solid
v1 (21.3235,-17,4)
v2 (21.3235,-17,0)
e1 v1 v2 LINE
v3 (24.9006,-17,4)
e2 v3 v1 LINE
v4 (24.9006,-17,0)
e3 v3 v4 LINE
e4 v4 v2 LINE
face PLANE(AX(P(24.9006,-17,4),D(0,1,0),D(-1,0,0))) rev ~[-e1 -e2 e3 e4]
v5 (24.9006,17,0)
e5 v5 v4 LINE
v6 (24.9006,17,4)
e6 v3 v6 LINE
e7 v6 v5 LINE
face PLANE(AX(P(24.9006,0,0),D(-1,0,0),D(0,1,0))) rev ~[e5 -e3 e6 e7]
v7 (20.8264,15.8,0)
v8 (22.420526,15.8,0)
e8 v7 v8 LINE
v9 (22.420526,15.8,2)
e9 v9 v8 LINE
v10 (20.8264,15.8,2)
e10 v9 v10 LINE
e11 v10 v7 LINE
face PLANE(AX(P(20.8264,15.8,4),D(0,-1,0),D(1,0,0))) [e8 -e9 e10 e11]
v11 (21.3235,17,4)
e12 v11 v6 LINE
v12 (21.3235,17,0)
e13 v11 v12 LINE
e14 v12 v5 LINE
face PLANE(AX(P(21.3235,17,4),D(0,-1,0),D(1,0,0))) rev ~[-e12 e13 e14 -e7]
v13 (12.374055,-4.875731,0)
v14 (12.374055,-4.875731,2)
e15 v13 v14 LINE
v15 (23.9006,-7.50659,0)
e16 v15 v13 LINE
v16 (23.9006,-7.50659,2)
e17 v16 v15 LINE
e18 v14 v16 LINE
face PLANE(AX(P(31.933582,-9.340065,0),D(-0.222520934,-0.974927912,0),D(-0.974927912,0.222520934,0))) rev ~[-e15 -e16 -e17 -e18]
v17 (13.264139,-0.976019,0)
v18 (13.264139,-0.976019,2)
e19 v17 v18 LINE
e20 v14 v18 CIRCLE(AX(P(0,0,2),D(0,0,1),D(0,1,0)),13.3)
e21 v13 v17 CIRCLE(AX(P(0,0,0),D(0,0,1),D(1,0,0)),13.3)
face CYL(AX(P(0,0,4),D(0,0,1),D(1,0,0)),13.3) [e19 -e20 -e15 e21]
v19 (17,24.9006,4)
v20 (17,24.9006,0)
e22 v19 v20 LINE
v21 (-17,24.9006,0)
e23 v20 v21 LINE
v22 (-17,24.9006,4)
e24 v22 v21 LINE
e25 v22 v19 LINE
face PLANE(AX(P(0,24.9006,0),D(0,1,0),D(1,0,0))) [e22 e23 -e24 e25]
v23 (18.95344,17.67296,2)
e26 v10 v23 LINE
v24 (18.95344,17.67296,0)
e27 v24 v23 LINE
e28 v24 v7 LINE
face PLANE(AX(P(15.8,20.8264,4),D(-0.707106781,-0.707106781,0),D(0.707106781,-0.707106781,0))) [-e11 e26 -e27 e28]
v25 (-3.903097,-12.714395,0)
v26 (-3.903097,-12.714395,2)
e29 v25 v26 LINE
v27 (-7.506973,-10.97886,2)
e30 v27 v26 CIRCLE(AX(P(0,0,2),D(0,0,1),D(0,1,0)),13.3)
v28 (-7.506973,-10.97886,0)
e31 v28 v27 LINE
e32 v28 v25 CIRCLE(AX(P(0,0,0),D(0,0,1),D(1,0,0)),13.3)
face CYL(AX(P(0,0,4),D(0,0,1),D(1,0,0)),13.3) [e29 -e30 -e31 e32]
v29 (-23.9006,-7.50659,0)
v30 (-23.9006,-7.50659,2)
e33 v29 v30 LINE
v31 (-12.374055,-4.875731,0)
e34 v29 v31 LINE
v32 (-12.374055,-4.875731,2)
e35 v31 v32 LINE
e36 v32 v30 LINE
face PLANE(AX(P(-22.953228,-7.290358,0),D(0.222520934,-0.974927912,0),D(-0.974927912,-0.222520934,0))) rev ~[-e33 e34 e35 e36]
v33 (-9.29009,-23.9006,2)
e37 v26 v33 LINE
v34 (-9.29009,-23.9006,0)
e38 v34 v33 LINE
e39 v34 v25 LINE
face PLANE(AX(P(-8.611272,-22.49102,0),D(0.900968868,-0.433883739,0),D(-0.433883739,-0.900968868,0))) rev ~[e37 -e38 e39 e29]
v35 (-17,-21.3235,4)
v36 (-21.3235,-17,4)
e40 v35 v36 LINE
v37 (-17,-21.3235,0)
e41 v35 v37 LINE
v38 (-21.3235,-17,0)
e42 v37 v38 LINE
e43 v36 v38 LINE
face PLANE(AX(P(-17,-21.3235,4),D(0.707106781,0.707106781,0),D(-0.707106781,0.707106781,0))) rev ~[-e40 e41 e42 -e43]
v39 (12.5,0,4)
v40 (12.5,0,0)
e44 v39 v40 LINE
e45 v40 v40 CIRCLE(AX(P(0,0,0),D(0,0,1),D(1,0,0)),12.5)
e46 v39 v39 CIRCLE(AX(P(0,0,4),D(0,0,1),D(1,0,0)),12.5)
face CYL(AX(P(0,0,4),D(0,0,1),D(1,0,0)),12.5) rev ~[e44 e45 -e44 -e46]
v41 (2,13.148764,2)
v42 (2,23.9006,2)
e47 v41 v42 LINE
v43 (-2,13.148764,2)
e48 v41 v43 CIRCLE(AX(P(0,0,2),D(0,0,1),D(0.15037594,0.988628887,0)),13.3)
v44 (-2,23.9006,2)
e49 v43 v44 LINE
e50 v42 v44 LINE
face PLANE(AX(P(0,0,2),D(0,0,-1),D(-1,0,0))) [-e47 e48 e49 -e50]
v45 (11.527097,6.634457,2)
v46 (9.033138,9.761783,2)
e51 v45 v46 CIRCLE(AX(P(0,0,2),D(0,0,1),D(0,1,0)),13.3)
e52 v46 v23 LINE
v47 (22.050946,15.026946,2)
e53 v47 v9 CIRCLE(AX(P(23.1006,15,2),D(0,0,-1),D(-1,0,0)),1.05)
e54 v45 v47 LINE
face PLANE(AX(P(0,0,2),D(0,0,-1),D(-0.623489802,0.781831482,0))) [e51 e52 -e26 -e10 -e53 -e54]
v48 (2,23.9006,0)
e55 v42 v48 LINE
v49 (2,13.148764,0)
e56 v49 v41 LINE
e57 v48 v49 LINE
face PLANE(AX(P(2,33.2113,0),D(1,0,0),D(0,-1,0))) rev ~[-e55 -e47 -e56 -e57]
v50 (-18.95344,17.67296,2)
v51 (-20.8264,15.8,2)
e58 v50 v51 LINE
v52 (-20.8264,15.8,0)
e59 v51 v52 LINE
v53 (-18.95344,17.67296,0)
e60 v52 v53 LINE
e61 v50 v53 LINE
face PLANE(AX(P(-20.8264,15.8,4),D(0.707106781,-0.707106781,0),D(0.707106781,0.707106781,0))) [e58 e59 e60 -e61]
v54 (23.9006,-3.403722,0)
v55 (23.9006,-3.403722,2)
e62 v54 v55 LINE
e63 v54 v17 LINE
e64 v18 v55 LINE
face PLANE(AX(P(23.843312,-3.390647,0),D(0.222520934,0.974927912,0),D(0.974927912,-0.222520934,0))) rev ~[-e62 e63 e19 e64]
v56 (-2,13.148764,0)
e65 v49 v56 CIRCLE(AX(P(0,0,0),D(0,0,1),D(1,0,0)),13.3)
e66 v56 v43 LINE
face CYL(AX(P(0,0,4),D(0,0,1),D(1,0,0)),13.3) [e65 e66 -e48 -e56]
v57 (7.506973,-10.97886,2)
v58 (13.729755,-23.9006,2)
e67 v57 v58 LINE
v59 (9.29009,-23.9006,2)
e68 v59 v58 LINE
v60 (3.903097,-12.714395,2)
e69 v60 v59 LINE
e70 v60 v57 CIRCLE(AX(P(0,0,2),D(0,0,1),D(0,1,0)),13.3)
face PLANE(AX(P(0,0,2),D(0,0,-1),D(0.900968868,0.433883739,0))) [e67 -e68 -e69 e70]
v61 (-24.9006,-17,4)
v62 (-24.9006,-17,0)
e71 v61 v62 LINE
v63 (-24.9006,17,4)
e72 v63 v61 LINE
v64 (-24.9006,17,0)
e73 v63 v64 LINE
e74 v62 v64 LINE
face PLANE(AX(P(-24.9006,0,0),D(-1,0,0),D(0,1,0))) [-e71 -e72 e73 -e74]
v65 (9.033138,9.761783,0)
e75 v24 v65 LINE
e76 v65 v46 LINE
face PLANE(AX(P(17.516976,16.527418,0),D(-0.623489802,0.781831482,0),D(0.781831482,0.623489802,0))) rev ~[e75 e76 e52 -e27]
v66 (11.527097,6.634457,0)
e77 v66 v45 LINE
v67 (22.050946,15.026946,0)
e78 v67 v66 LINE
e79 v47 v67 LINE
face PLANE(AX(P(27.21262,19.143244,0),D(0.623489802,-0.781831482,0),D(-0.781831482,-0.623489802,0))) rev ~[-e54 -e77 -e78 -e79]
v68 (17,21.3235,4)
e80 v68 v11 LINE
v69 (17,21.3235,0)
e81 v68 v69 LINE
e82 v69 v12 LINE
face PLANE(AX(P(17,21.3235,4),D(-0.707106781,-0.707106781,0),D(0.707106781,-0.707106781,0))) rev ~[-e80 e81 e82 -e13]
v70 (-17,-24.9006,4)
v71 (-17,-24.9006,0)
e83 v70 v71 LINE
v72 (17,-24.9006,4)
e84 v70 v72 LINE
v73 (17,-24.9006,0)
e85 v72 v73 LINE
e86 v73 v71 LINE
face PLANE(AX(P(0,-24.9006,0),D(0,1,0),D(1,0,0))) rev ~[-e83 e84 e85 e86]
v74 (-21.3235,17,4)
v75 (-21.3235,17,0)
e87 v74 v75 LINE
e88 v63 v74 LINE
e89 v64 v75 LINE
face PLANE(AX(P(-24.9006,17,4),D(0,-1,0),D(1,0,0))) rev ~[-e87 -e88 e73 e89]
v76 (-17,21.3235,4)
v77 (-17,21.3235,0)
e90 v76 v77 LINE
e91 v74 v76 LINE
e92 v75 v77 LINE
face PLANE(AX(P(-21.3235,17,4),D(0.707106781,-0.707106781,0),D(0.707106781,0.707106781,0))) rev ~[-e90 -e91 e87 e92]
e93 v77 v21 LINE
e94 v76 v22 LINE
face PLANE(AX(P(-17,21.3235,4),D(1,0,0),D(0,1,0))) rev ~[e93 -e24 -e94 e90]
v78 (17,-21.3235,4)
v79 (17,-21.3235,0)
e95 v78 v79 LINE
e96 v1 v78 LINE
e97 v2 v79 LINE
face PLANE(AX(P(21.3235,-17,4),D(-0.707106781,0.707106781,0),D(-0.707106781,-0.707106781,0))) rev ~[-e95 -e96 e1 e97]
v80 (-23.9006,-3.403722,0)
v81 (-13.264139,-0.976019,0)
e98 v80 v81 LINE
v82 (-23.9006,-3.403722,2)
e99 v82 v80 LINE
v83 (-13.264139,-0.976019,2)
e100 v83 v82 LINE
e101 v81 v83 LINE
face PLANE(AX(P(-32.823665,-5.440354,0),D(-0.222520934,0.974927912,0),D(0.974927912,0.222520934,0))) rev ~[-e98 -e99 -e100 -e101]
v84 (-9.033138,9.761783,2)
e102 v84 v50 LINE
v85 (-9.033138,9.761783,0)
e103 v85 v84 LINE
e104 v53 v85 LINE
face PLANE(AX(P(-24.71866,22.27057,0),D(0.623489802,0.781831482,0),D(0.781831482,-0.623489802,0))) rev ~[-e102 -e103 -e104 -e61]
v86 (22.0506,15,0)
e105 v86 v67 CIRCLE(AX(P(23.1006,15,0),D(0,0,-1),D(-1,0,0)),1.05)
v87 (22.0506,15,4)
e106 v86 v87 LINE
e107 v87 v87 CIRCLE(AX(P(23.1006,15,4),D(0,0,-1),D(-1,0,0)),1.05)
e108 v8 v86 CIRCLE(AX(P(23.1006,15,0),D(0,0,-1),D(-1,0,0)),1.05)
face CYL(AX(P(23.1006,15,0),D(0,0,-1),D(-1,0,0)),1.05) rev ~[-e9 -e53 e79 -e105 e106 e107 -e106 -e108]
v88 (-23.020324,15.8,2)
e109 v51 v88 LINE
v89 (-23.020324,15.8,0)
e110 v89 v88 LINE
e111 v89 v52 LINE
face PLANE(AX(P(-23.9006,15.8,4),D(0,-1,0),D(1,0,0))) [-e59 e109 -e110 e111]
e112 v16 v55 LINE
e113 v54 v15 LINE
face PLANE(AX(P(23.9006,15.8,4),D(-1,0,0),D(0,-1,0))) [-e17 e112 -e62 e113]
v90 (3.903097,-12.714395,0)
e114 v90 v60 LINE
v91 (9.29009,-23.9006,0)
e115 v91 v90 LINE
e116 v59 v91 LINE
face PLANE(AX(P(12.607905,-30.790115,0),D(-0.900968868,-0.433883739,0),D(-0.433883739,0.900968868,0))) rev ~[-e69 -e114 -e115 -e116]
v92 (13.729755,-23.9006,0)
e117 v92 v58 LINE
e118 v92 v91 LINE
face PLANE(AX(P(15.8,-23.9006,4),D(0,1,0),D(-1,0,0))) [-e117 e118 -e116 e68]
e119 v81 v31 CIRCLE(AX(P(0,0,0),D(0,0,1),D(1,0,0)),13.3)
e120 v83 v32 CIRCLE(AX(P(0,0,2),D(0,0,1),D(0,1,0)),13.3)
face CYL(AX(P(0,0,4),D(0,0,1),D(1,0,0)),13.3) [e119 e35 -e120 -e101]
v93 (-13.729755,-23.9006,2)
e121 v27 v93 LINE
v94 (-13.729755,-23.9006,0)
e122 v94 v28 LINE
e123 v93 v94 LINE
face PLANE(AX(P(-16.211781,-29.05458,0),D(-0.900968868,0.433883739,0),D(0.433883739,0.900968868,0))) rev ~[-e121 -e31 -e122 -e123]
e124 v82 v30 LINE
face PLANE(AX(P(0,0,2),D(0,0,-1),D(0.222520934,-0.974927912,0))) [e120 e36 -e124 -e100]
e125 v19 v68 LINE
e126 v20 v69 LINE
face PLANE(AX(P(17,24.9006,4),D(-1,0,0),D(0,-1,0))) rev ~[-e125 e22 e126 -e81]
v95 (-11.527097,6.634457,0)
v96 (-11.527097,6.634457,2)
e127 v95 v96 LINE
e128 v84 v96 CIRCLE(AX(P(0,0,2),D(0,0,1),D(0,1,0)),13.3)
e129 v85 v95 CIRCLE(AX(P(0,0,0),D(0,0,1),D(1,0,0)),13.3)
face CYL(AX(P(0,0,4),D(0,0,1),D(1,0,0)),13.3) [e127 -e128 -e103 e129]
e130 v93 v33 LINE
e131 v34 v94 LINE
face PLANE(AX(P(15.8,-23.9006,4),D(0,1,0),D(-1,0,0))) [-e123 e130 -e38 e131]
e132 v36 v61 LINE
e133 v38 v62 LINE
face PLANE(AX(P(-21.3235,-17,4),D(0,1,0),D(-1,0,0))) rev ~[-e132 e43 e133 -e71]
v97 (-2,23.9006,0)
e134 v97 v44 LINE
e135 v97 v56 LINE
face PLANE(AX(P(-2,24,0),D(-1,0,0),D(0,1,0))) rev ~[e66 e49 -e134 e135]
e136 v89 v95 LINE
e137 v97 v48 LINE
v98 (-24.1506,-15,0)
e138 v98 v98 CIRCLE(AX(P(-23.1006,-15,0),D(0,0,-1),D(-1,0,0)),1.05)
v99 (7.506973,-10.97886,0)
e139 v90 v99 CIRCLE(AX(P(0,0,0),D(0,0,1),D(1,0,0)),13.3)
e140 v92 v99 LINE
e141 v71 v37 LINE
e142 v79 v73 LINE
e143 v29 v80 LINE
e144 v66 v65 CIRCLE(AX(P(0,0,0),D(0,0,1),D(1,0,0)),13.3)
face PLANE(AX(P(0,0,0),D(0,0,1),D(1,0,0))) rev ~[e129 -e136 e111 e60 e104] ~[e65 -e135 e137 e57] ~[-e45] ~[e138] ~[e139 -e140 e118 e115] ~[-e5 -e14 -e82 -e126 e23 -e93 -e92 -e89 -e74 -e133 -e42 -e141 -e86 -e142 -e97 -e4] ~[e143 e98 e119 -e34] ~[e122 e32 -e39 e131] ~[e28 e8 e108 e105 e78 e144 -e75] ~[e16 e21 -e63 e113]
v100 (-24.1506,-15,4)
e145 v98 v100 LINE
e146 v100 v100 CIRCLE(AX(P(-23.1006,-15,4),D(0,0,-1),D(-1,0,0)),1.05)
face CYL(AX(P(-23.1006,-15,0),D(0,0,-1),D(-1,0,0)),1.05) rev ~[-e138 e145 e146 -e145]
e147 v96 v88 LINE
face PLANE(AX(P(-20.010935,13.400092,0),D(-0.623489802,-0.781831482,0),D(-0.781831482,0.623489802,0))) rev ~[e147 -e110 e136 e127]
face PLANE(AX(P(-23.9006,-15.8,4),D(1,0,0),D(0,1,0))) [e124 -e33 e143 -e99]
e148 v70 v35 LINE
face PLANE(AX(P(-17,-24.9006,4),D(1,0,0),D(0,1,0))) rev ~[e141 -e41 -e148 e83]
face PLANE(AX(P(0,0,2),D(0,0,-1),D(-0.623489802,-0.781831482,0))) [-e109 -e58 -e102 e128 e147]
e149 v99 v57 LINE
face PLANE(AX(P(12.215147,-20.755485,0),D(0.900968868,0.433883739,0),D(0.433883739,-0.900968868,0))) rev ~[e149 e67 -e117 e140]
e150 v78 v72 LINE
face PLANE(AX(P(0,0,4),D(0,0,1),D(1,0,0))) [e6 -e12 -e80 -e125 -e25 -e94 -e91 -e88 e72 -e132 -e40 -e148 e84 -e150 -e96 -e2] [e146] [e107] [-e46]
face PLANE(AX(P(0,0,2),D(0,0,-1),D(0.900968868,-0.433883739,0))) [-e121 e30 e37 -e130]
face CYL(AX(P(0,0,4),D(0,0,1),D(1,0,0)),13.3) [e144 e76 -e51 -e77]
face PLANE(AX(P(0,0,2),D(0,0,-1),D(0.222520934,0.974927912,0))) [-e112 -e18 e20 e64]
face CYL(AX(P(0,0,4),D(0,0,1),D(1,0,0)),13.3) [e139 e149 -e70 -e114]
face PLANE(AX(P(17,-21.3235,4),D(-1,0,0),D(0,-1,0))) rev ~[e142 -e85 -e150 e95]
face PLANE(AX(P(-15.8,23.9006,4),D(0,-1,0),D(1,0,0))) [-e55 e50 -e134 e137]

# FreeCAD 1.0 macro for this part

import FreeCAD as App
import Part
import Sketcher

V = App.Vector

doc = App.newDocument("Part")
body = doc.addObject("PartDesign::Body", "Body")

# Sketch on XY plane
sketch1 = body.newObject("Sketcher::SketchObject", "Sketch")
sketch1.AttachmentSupport = (doc.getObject("XY_Plane"), [""])
sketch1.MapMode = "FlatFace"
sketch1.addGeometry(Part.LineSegment(V(16.8, 24.9, 0), V(-16.8, 24.9, 0)), False)
sketch1.addGeometry(Part.LineSegment(V(-16.8, 24.9, 0), V(-16.8, 21.2, 0)), False)
sketch1.addGeometry(Part.LineSegment(V(-16.8, 21.2, 0), V(-21.2, 16.8, 0)), False)
sketch1.addGeometry(Part.LineSegment(V(-21.2, 16.8, 0), V(-24.9, 16.8, 0)), False)
sketch1.addGeometry(Part.LineSegment(V(-24.9, 16.8, 0), V(-24.9, -16.8, 0)), False)
sketch1.addGeometry(Part.LineSegment(V(-24.9, -16.8, 0), V(-21.2, -16.8, 0)), False)
sketch1.addGeometry(Part.LineSegment(V(-21.2, -16.8, 0), V(-16.8, -21.2, 0)), False)
sketch1.addGeometry(Part.LineSegment(V(-16.8, -21.2, 0), V(-16.8, -24.9, 0)), False)
sketch1.addGeometry(Part.LineSegment(V(-16.8, -24.9, 0), V(16.8, -24.9, 0)), False)
sketch1.addGeometry(Part.LineSegment(V(16.8, -24.9, 0), V(16.8, -21.2, 0)), False)
sketch1.addGeometry(Part.LineSegment(V(16.8, -21.2, 0), V(21.2, -16.8, 0)), False)
sketch1.addGeometry(Part.LineSegment(V(21.2, -16.8, 0), V(24.9, -16.8, 0)), False)
sketch1.addGeometry(Part.LineSegment(V(24.9, -16.8, 0), V(24.9, 16.8, 0)), False)
sketch1.addGeometry(Part.LineSegment(V(24.9, 16.8, 0), V(21.2, 16.8, 0)), False)
sketch1.addGeometry(Part.LineSegment(V(21.2, 16.8, 0), V(16.8, 21.2, 0)), False)
sketch1.addGeometry(Part.LineSegment(V(16.8, 21.2, 0), V(16.8, 24.9, 0)), False)
sketch1.addConstraint(Sketcher.Constraint("Coincident", 0, 2, 1, 1))
sketch1.addConstraint(Sketcher.Constraint("Coincident", 1, 2, 2, 1))
sketch1.addConstraint(Sketcher.Constraint("Coincident", 2, 2, 3, 1))
sketch1.addConstraint(Sketcher.Constraint("Coincident", 3, 2, 4, 1))
sketch1.addConstraint(Sketcher.Constraint("Coincident", 4, 2, 5, 1))
sketch1.addConstraint(Sketcher.Constraint("Coincident", 5, 2, 6, 1))
sketch1.addConstraint(Sketcher.Constraint("Coincident", 6, 2, 7, 1))
sketch1.addConstraint(Sketcher.Constraint("Coincident", 7, 2, 8, 1))
sketch1.addConstraint(Sketcher.Constraint("Coincident", 8, 2, 9, 1))
sketch1.addConstraint(Sketcher.Constraint("Coincident", 9, 2, 10, 1))
sketch1.addConstraint(Sketcher.Constraint("Coincident", 10, 2, 11, 1))
sketch1.addConstraint(Sketcher.Constraint("Coincident", 11, 2, 12, 1))
sketch1.addConstraint(Sketcher.Constraint("Coincident", 12, 2, 13, 1))
sketch1.addConstraint(Sketcher.Constraint("Coincident", 13, 2, 14, 1))
sketch1.addConstraint(Sketcher.Constraint("Coincident", 14, 2, 15, 1))
sketch1.addConstraint(Sketcher.Constraint("Coincident", 15, 2, 0, 1))
sketch1.addConstraint(Sketcher.Constraint("Horizontal", 0))
sketch1.addConstraint(Sketcher.Constraint("Vertical", 1))
sketch1.addConstraint(Sketcher.Constraint("Horizontal", 3))
sketch1.addConstraint(Sketcher.Constraint("Vertical", 4))
sketch1.addConstraint(Sketcher.Constraint("Horizontal", 5))
sketch1.addConstraint(Sketcher.Constraint("Vertical", 7))
sketch1.addConstraint(Sketcher.Constraint("Horizontal", 8))
sketch1.addConstraint(Sketcher.Constraint("Vertical", 9))
sketch1.addConstraint(Sketcher.Constraint("Horizontal", 11))
sketch1.addConstraint(Sketcher.Constraint("Vertical", 12))
sketch1.addConstraint(Sketcher.Constraint("Horizontal", 13))
sketch1.addConstraint(Sketcher.Constraint("Vertical", 15))
sketch1.addConstraint(Sketcher.Constraint("Symmetric", 0, 2, 8, 2, -1, 1))
sketch1.addConstraint(Sketcher.Constraint("Symmetric", 2, 2, 10, 2, -1, 1))
sketch1.addConstraint(Sketcher.Constraint("Symmetric", 4, 2, 12, 2, -1, 1))
sketch1.addConstraint(Sketcher.Constraint("Symmetric", 6, 2, 14, 2, -1, 1))
sketch1.addConstraint(Sketcher.Constraint("Symmetric", 6, 2, 9, 2, -2))
sketch1.addConstraint(Sketcher.Constraint("Symmetric", 5, 2, 10, 2, -2))
sketch1.addConstraint(Sketcher.Constraint("Perpendicular", 2, 6))
sketch1.addConstraint(Sketcher.Constraint("Perpendicular", 6, 10))
sketch1.addConstraint(Sketcher.Constraint("Perpendicular", 10, 14))
sketch1.addConstraint(Sketcher.Constraint("Equal", 13, 1))
sketch1.addConstraint(Sketcher.Constraint("Equal", 8, 4))
sketch1.addConstraint(Sketcher.Constraint("DistanceX", 3, 2, 3, 1, 3.66))
sketch1.addConstraint(Sketcher.Constraint("DistanceX", 0, 2, -1, 1, 16.8))
sketch1.addConstraint(Sketcher.Constraint("Distance", 2, 6.28))
pad1 = body.newObject("PartDesign::Pad", "Pad")
pad1.Profile = sketch1
pad1.Length = 4

# Sketch on XY plane
sketch2 = body.newObject("Sketcher::SketchObject", "Sketch001")
sketch2.AttachmentSupport = (doc.getObject("XY_Plane"), [""])
sketch2.MapMode = "FlatFace"
sketch2.addGeometry(Part.Circle(V(0, 0, 0), V(0, 0, 1), 13), False)
sketch2.addConstraint(Sketcher.Constraint("Coincident", 0, 3, -1, 1))
sketch2.addConstraint(Sketcher.Constraint("Diameter", 0, 26.6))
doc.recompute()
hole = body.newObject("PartDesign::Hole", "Hole")
hole.Profile = sketch2
hole.ThreadType = "None"
hole.Diameter = 26.6
hole.DepthType = "ThroughAll"
hole.Reversed = True

# Sketch on XY plane
sketch3 = body.newObject("Sketcher::SketchObject", "Sketch002")
sketch3.AttachmentSupport = (doc.getObject("XY_Plane"), [""])
sketch3.MapMode = "FlatFace"
sketch3.addGeometry(Part.LineSegment(V(-2, 33.2, 0), V(2, 33.2, 0)), False)
sketch3.addGeometry(Part.LineSegment(V(2, 33.2, 0), V(2, 6.8, 0)), False)
sketch3.addGeometry(Part.LineSegment(V(2, 6.8, 0), V(-2, 6.8, 0)), False)
sketch3.addGeometry(Part.LineSegment(V(-2, 6.8, 0), V(-2, 33.2, 0)), False)
sketch3.addConstraint(Sketcher.Constraint("Coincident", 0, 2, 1, 1))
sketch3.addConstraint(Sketcher.Constraint("Coincident", 1, 2, 2, 1))
sketch3.addConstraint(Sketcher.Constraint("Coincident", 2, 2, 3, 1))
sketch3.addConstraint(Sketcher.Constraint("Coincident", 3, 2, 0, 1))
sketch3.addConstraint(Sketcher.Constraint("Horizontal", 0))
sketch3.addConstraint(Sketcher.Constraint("Vertical", 1))
sketch3.addConstraint(Sketcher.Constraint("Horizontal", 2))
sketch3.addConstraint(Sketcher.Constraint("Vertical", 3))
sketch3.addConstraint(Sketcher.Constraint("DistanceX", 0, 1, 0, 2, 4.0))
sketch3.addConstraint(Sketcher.Constraint("DistanceX", -1, 1, 0, 2, 2.0))
sketch3.addConstraint(Sketcher.Constraint("DistanceY", 1, 2, 1, 1, 26.3632))
sketch3.addConstraint(Sketcher.Constraint("DistanceY", -1, 1, 1, 2, 6.848))
pocket1 = body.newObject("PartDesign::Pocket", "Pocket")
pocket1.Profile = sketch3
pocket1.Length = 2
pocket1.Reversed = True
doc.recompute()

polarpattern = body.newObject("PartDesign::PolarPattern", "PolarPattern")
polarpattern.Originals = [pocket1]
polarpattern.Axis = (doc.getObject("Z_Axis"), [""])
polarpattern.Angle = 360
polarpattern.Occurrences = 7
body.Tip = polarpattern

# Sketch on XY plane
sketch4 = body.newObject("Sketcher::SketchObject", "Sketch003")
sketch4.AttachmentSupport = (doc.getObject("XY_Plane"), [""])
sketch4.MapMode = "FlatFace"
sketch4.AttachmentOffset = App.Placement(V(0, 0, 4), App.Rotation())
sketch4.addGeometry(Part.LineSegment(V(16.8, 21.2, 0), V(16.8, 24.9, 0)), False)
sketch4.addGeometry(Part.LineSegment(V(16.8, 24.9, 0), V(-16.8, 24.9, 0)), False)
sketch4.addGeometry(Part.LineSegment(V(-16.8, 24.9, 0), V(-16.8, 21.2, 0)), False)
sketch4.addGeometry(Part.LineSegment(V(-16.8, 21.2, 0), V(-21.2, 16.8, 0)), False)
sketch4.addGeometry(Part.LineSegment(V(-21.2, 16.8, 0), V(-24.9, 16.8, 0)), False)
sketch4.addGeometry(Part.LineSegment(V(-24.9, 16.8, 0), V(-24.9, -16.8, 0)), False)
sketch4.addGeometry(Part.LineSegment(V(-24.9, -16.8, 0), V(-21.2, -16.8, 0)), False)
sketch4.addGeometry(Part.LineSegment(V(-21.2, -16.8, 0), V(-16.8, -21.2, 0)), False)
sketch4.addGeometry(Part.LineSegment(V(-16.8, -21.2, 0), V(-16.8, -24.9, 0)), False)
sketch4.addGeometry(Part.LineSegment(V(-16.8, -24.9, 0), V(16.8, -24.9, 0)), False)
sketch4.addGeometry(Part.LineSegment(V(16.8, -24.9, 0), V(16.8, -21.2, 0)), False)
sketch4.addGeometry(Part.LineSegment(V(16.8, -21.2, 0), V(21.2, -16.8, 0)), False)
sketch4.addGeometry(Part.LineSegment(V(21.2, -16.8, 0), V(24.9, -16.8, 0)), False)
sketch4.addGeometry(Part.LineSegment(V(24.9, -16.8, 0), V(24.9, 16.8, 0)), False)
sketch4.addGeometry(Part.LineSegment(V(24.9, 16.8, 0), V(21.2, 16.8, 0)), False)
sketch4.addGeometry(Part.LineSegment(V(21.2, 16.8, 0), V(16.8, 21.2, 0)), False)
sketch4.addGeometry(Part.LineSegment(V(-20.8, -15.8, 0), V(-23.9, -15.8, 0)), False)
sketch4.addGeometry(Part.LineSegment(V(-23.9, -15.8, 0), V(-23.9, 15.8, 0)), False)
sketch4.addGeometry(Part.LineSegment(V(-23.9, 15.8, 0), V(-20.8, 15.8, 0)), False)
sketch4.addGeometry(Part.LineSegment(V(-20.8, 15.8, 0), V(-15.8, 20.8, 0)), False)
sketch4.addGeometry(Part.LineSegment(V(-15.8, 20.8, 0), V(-15.8, 23.9, 0)), False)
sketch4.addGeometry(Part.LineSegment(V(-15.8, 23.9, 0), V(15.8, 23.9, 0)), False)
sketch4.addGeometry(Part.LineSegment(V(15.8, 23.9, 0), V(15.8, 20.8, 0)), False)
sketch4.addGeometry(Part.LineSegment(V(15.8, 20.8, 0), V(20.8, 15.8, 0)), False)
sketch4.addGeometry(Part.LineSegment(V(20.8, 15.8, 0), V(23.9, 15.8, 0)), False)
sketch4.addGeometry(Part.LineSegment(V(23.9, 15.8, 0), V(23.9, -15.8, 0)), False)
sketch4.addGeometry(Part.LineSegment(V(23.9, -15.8, 0), V(20.8, -15.8, 0)), False)
sketch4.addGeometry(Part.LineSegment(V(20.8, -15.8, 0), V(15.8, -20.8, 0)), False)
sketch4.addGeometry(Part.LineSegment(V(15.8, -20.8, 0), V(15.8, -23.9, 0)), False)
sketch4.addGeometry(Part.LineSegment(V(15.8, -23.9, 0), V(-15.8, -23.9, 0)), False)
sketch4.addGeometry(Part.LineSegment(V(-15.8, -23.9, 0), V(-15.8, -20.8, 0)), False)
sketch4.addGeometry(Part.LineSegment(V(-15.8, -20.8, 0), V(-20.8, -15.8, 0)), False)
sketch4.addGeometry(Part.Circle(V(0, 0, 0), V(0, 0, 1), 13.3), False)
sketch4.addGeometry(Part.Circle(V(0, 0, 0), V(0, 0, 1), 12.5), False)
sketch4.addConstraint(Sketcher.Constraint("Coincident", 0, 2, 1, 1))
sketch4.addConstraint(Sketcher.Constraint("Coincident", 1, 2, 2, 1))
sketch4.addConstraint(Sketcher.Constraint("Coincident", 2, 2, 3, 1))
sketch4.addConstraint(Sketcher.Constraint("Coincident", 3, 2, 4, 1))
sketch4.addConstraint(Sketcher.Constraint("Coincident", 4, 2, 5, 1))
sketch4.addConstraint(Sketcher.Constraint("Coincident", 5, 2, 6, 1))
sketch4.addConstraint(Sketcher.Constraint("Coincident", 6, 2, 7, 1))
sketch4.addConstraint(Sketcher.Constraint("Coincident", 7, 2, 8, 1))
sketch4.addConstraint(Sketcher.Constraint("Coincident", 8, 2, 9, 1))
sketch4.addConstraint(Sketcher.Constraint("Coincident", 9, 2, 10, 1))
sketch4.addConstraint(Sketcher.Constraint("Coincident", 10, 2, 11, 1))
sketch4.addConstraint(Sketcher.Constraint("Coincident", 11, 2, 12, 1))
sketch4.addConstraint(Sketcher.Constraint("Coincident", 12, 2, 13, 1))
sketch4.addConstraint(Sketcher.Constraint("Coincident", 13, 2, 14, 1))
sketch4.addConstraint(Sketcher.Constraint("Coincident", 14, 2, 15, 1))
sketch4.addConstraint(Sketcher.Constraint("Coincident", 15, 2, 0, 1))
sketch4.addConstraint(Sketcher.Constraint("Coincident", 16, 2, 17, 1))
sketch4.addConstraint(Sketcher.Constraint("Coincident", 17, 2, 18, 1))
sketch4.addConstraint(Sketcher.Constraint("Coincident", 18, 2, 19, 1))
sketch4.addConstraint(Sketcher.Constraint("Coincident", 19, 2, 20, 1))
sketch4.addConstraint(Sketcher.Constraint("Coincident", 20, 2, 21, 1))
sketch4.addConstraint(Sketcher.Constraint("Coincident", 21, 2, 22, 1))
sketch4.addConstraint(Sketcher.Constraint("Coincident", 22, 2, 23, 1))
sketch4.addConstraint(Sketcher.Constraint("Coincident", 23, 2, 24, 1))
sketch4.addConstraint(Sketcher.Constraint("Coincident", 24, 2, 25, 1))
sketch4.addConstraint(Sketcher.Constraint("Coincident", 25, 2, 26, 1))
sketch4.addConstraint(Sketcher.Constraint("Coincident", 26, 2, 27, 1))
sketch4.addConstraint(Sketcher.Constraint("Coincident", 27, 2, 28, 1))
sketch4.addConstraint(Sketcher.Constraint("Coincident", 28, 2, 29, 1))
sketch4.addConstraint(Sketcher.Constraint("Coincident", 29, 2, 30, 1))
sketch4.addConstraint(Sketcher.Constraint("Coincident", 30, 2, 31, 1))
sketch4.addConstraint(Sketcher.Constraint("Coincident", 31, 2, 16, 1))
sketch4.addConstraint(Sketcher.Constraint("Vertical", 0))
sketch4.addConstraint(Sketcher.Constraint("Horizontal", 1))
sketch4.addConstraint(Sketcher.Constraint("Vertical", 2))
sketch4.addConstraint(Sketcher.Constraint("Horizontal", 4))
sketch4.addConstraint(Sketcher.Constraint("Vertical", 5))
sketch4.addConstraint(Sketcher.Constraint("Horizontal", 6))
sketch4.addConstraint(Sketcher.Constraint("Vertical", 8))
sketch4.addConstraint(Sketcher.Constraint("Horizontal", 9))
sketch4.addConstraint(Sketcher.Constraint("Vertical", 10))
sketch4.addConstraint(Sketcher.Constraint("Horizontal", 12))
sketch4.addConstraint(Sketcher.Constraint("Vertical", 13))
sketch4.addConstraint(Sketcher.Constraint("Horizontal", 14))
sketch4.addConstraint(Sketcher.Constraint("Horizontal", 16))
sketch4.addConstraint(Sketcher.Constraint("Vertical", 17))
sketch4.addConstraint(Sketcher.Constraint("Horizontal", 18))
sketch4.addConstraint(Sketcher.Constraint("Vertical", 20))
sketch4.addConstraint(Sketcher.Constraint("Horizontal", 21))
sketch4.addConstraint(Sketcher.Constraint("Vertical", 22))
sketch4.addConstraint(Sketcher.Constraint("Horizontal", 24))
sketch4.addConstraint(Sketcher.Constraint("Vertical", 25))
sketch4.addConstraint(Sketcher.Constraint("Horizontal", 26))
sketch4.addConstraint(Sketcher.Constraint("Vertical", 28))
sketch4.addConstraint(Sketcher.Constraint("Horizontal", 29))
sketch4.addConstraint(Sketcher.Constraint("Vertical", 30))
sketch4.addConstraint(Sketcher.Constraint("Coincident", 32, 3, -1, 1))
sketch4.addConstraint(Sketcher.Constraint("Coincident", 33, 3, -1, 1))
sketch4.addConstraint(Sketcher.Constraint("Symmetric", 0, 2, 8, 2, -1, 1))
sketch4.addConstraint(Sketcher.Constraint("Symmetric", 2, 2, 10, 2, -1, 1))
sketch4.addConstraint(Sketcher.Constraint("Symmetric", 3, 2, 11, 2, -1, 1))
sketch4.addConstraint(Sketcher.Constraint("Symmetric", 5, 2, 13, 2, -1, 1))
sketch4.addConstraint(Sketcher.Constraint("Symmetric", 16, 2, 24, 2, -1, 1))
sketch4.addConstraint(Sketcher.Constraint("Symmetric", 18, 2, 26, 2, -1, 1))
sketch4.addConstraint(Sketcher.Constraint("Symmetric", 19, 2, 27, 2, -1, 1))
sketch4.addConstraint(Sketcher.Constraint("Symmetric", 21, 2, 29, 2, -1, 1))
sketch4.addConstraint(Sketcher.Constraint("Symmetric", 7, 2, 10, 2, -2))
sketch4.addConstraint(Sketcher.Constraint("Symmetric", 6, 2, 11, 2, -2))
sketch4.addConstraint(Sketcher.Constraint("Symmetric", 19, 2, 22, 2, -2))
sketch4.addConstraint(Sketcher.Constraint("Symmetric", 18, 2, 23, 2, -2))
sketch4.addConstraint(Sketcher.Constraint("Perpendicular", 3, 7))
sketch4.addConstraint(Sketcher.Constraint("Perpendicular", 11, 15))
sketch4.addConstraint(Sketcher.Constraint("Perpendicular", 15, 19))
sketch4.addConstraint(Sketcher.Constraint("Perpendicular", 27, 31))
sketch4.addConstraint(Sketcher.Constraint("Horizontal", 2, 2, 15, 2))
sketch4.addConstraint(Sketcher.Constraint("Horizontal", 27, 2, 30, 2))
sketch4.addConstraint(Sketcher.Constraint("Equal", 14, 0))
sketch4.addConstraint(Sketcher.Constraint("Equal", 9, 5))
sketch4.addConstraint(Sketcher.Constraint("Equal", 29, 17))
sketch4.addConstraint(Sketcher.Constraint("Equal", 26, 20))
sketch4.addConstraint(Sketcher.Constraint("Diameter", 33, 25.0))
sketch4.addConstraint(Sketcher.Constraint("DistanceX", 5, 2, 16, 2, 1.0))
sketch4.addConstraint(Sketcher.Constraint("DistanceY", 5, 2, 16, 2, 1.0))
sketch4.addConstraint(Sketcher.Constraint("Diameter", 32, 26.6))
sketch4.addConstraint(Sketcher.Constraint("DistanceX", 1, 2, 1, 1, 33.6))
sketch4.addConstraint(Sketcher.Constraint("DistanceX", 4, 2, 4, 1, 3.66))
sketch4.addConstraint(Sketcher.Constraint("Distance", 3, 6.28))
sketch4.addConstraint(Sketcher.Constraint("DistanceX", 16, 2, 16, 1, 3.0742))
pad2 = body.newObject("PartDesign::Pad", "Pad001")
pad2.Profile = sketch4
pad2.Length = 4
pad2.Reversed = True

# Sketch on XY plane
sketch5 = body.newObject("Sketcher::SketchObject", "Sketch004")
sketch5.AttachmentSupport = (doc.getObject("XY_Plane"), [""])
sketch5.MapMode = "FlatFace"
sketch5.addGeometry(Part.Circle(V(23.1, 15, 0), V(0, 0, 1), 1.1), False)
sketch5.addGeometry(Part.Circle(V(-23.1, -15, 0), V(0, 0, 1), 1.1), False)
sketch5.addConstraint(Sketcher.Constraint("Equal", 0, 1))
sketch5.addConstraint(Sketcher.Constraint("Symmetric", 0, 3, 1, 3, -1, 1))
sketch5.addConstraint(Sketcher.Constraint("Diameter", 0, 2.1))
sketch5.addConstraint(Sketcher.Constraint("DistanceY", -1, 1, 0, 3, 15.0))
sketch5.addConstraint(Sketcher.Constraint("DistanceX", -1, 1, 0, 3, 23.1006))
pocket2 = body.newObject("PartDesign::Pocket", "Pocket001")
pocket2.Profile = sketch5
pocket2.Type = "ThroughAll"
pocket2.Reversed = True

# Sketch on XY plane
sketch6 = body.newObject("Sketcher::SketchObject", "Sketch005")
sketch6.AttachmentSupport = (doc.getObject("XY_Plane"), [""])
sketch6.MapMode = "FlatFace"
sketch6.AttachmentOffset = App.Placement(V(0, 0, 4), App.Rotation())
sketch6.addGeometry(Part.LineSegment(V(-16.8, 21.24, 0), V(-16.8, 24.9, 0)), False)
sketch6.addGeometry(Part.LineSegment(V(-16.8, 24.9, 0), V(-17, 24.9, 0)), False)
sketch6.addGeometry(Part.LineSegment(V(-17, 24.9, 0), V(-17, 21.32, 0)), False)
sketch6.addGeometry(Part.LineSegment(V(-17, 21.32, 0), V(-21.32, 17, 0)), False)
sketch6.addGeometry(Part.LineSegment(V(-21.32, 17, 0), V(-24.9, 17, 0)), False)
sketch6.addGeometry(Part.LineSegment(V(-24.9, 17, 0), V(-24.9, 16.8, 0)), False)
sketch6.addGeometry(Part.LineSegment(V(-24.9, 16.8, 0), V(-21.24, 16.8, 0)), False)
sketch6.addGeometry(Part.LineSegment(V(-21.24, 16.8, 0), V(-16.8, 21.24, 0)), False)
sketch6.addGeometry(Part.LineSegment(V(21.24, 16.8, 0), V(24.9, 16.8, 0)), False)
sketch6.addGeometry(Part.LineSegment(V(24.9, 16.8, 0), V(24.9, 17, 0)), False)
sketch6.addGeometry(Part.LineSegment(V(24.9, 17, 0), V(21.32, 17, 0)), False)
sketch6.addGeometry(Part.LineSegment(V(21.32, 17, 0), V(17, 21.32, 0)), False)
sketch6.addGeometry(Part.LineSegment(V(17, 21.32, 0), V(17, 24.9, 0)), False)
sketch6.addGeometry(Part.LineSegment(V(17, 24.9, 0), V(16.8, 24.9, 0)), False)
sketch6.addGeometry(Part.LineSegment(V(16.8, 24.9, 0), V(16.8, 21.24, 0)), False)
sketch6.addGeometry(Part.LineSegment(V(16.8, 21.24, 0), V(21.24, 16.8, 0)), False)
sketch6.addGeometry(Part.LineSegment(V(16.8, -21.24, 0), V(16.8, -24.9, 0)), False)
sketch6.addGeometry(Part.LineSegment(V(16.8, -24.9, 0), V(17, -24.9, 0)), False)
sketch6.addGeometry(Part.LineSegment(V(17, -24.9, 0), V(17, -21.32, 0)), False)
sketch6.addGeometry(Part.LineSegment(V(17, -21.32, 0), V(21.32, -17, 0)), False)
sketch6.addGeometry(Part.LineSegment(V(21.32, -17, 0), V(24.9, -17, 0)), False)
sketch6.addGeometry(Part.LineSegment(V(24.9, -17, 0), V(24.9, -16.8, 0)), False)
sketch6.addGeometry(Part.LineSegment(V(24.9, -16.8, 0), V(21.24, -16.8, 0)), False)
sketch6.addGeometry(Part.LineSegment(V(21.24, -16.8, 0), V(16.8, -21.24, 0)), False)
sketch6.addGeometry(Part.LineSegment(V(-21.24, -16.8, 0), V(-24.9, -16.8, 0)), False)
sketch6.addGeometry(Part.LineSegment(V(-24.9, -16.8, 0), V(-24.9, -17, 0)), False)
sketch6.addGeometry(Part.LineSegment(V(-24.9, -17, 0), V(-21.32, -17, 0)), False)
sketch6.addGeometry(Part.LineSegment(V(-21.32, -17, 0), V(-17, -21.32, 0)), False)
sketch6.addGeometry(Part.LineSegment(V(-17, -21.32, 0), V(-17, -24.9, 0)), False)
sketch6.addGeometry(Part.LineSegment(V(-17, -24.9, 0), V(-16.8, -24.9, 0)), False)
sketch6.addGeometry(Part.LineSegment(V(-16.8, -24.9, 0), V(-16.8, -21.24, 0)), False)
sketch6.addGeometry(Part.LineSegment(V(-16.8, -21.24, 0), V(-21.24, -16.8, 0)), False)
sketch6.addConstraint(Sketcher.Constraint("Coincident", 0, 2, 1, 1))
sketch6.addConstraint(Sketcher.Constraint("Coincident", 1, 2, 2, 1))
sketch6.addConstraint(Sketcher.Constraint("Coincident", 2, 2, 3, 1))
sketch6.addConstraint(Sketcher.Constraint("Coincident", 3, 2, 4, 1))
sketch6.addConstraint(Sketcher.Constraint("Coincident", 4, 2, 5, 1))
sketch6.addConstraint(Sketcher.Constraint("Coincident", 5, 2, 6, 1))
sketch6.addConstraint(Sketcher.Constraint("Coincident", 6, 2, 7, 1))
sketch6.addConstraint(Sketcher.Constraint("Coincident", 7, 2, 0, 1))
sketch6.addConstraint(Sketcher.Constraint("Coincident", 8, 2, 9, 1))
sketch6.addConstraint(Sketcher.Constraint("Coincident", 9, 2, 10, 1))
sketch6.addConstraint(Sketcher.Constraint("Coincident", 10, 2, 11, 1))
sketch6.addConstraint(Sketcher.Constraint("Coincident", 11, 2, 12, 1))
sketch6.addConstraint(Sketcher.Constraint("Coincident", 12, 2, 13, 1))
sketch6.addConstraint(Sketcher.Constraint("Coincident", 13, 2, 14, 1))
sketch6.addConstraint(Sketcher.Constraint("Coincident", 14, 2, 15, 1))
sketch6.addConstraint(Sketcher.Constraint("Coincident", 15, 2, 8, 1))
sketch6.addConstraint(Sketcher.Constraint("Coincident", 16, 2, 17, 1))
sketch6.addConstraint(Sketcher.Constraint("Coincident", 17, 2, 18, 1))
sketch6.addConstraint(Sketcher.Constraint("Coincident", 18, 2, 19, 1))
sketch6.addConstraint(Sketcher.Constraint("Coincident", 19, 2, 20, 1))
sketch6.addConstraint(Sketcher.Constraint("Coincident", 20, 2, 21, 1))
sketch6.addConstraint(Sketcher.Constraint("Coincident", 21, 2, 22, 1))
sketch6.addConstraint(Sketcher.Constraint("Coincident", 22, 2, 23, 1))
sketch6.addConstraint(Sketcher.Constraint("Coincident", 23, 2, 16, 1))
sketch6.addConstraint(Sketcher.Constraint("Coincident", 24, 2, 25, 1))
sketch6.addConstraint(Sketcher.Constraint("Coincident", 25, 2, 26, 1))
sketch6.addConstraint(Sketcher.Constraint("Coincident", 26, 2, 27, 1))
sketch6.addConstraint(Sketcher.Constraint("Coincident", 27, 2, 28, 1))
sketch6.addConstraint(Sketcher.Constraint("Coincident", 28, 2, 29, 1))
sketch6.addConstraint(Sketcher.Constraint("Coincident", 29, 2, 30, 1))
sketch6.addConstraint(Sketcher.Constraint("Coincident", 30, 2, 31, 1))
sketch6.addConstraint(Sketcher.Constraint("Coincident", 31, 2, 24, 1))
sketch6.addConstraint(Sketcher.Constraint("Vertical", 0))
sketch6.addConstraint(Sketcher.Constraint("Horizontal", 1))
sketch6.addConstraint(Sketcher.Constraint("Vertical", 2))
sketch6.addConstraint(Sketcher.Constraint("Horizontal", 4))
sketch6.addConstraint(Sketcher.Constraint("Vertical", 5))
sketch6.addConstraint(Sketcher.Constraint("Horizontal", 6))
sketch6.addConstraint(Sketcher.Constraint("Horizontal", 8))
sketch6.addConstraint(Sketcher.Constraint("Vertical", 9))
sketch6.addConstraint(Sketcher.Constraint("Horizontal", 10))
sketch6.addConstraint(Sketcher.Constraint("Vertical", 12))
sketch6.addConstraint(Sketcher.Constraint("Horizontal", 13))
sketch6.addConstraint(Sketcher.Constraint("Vertical", 14))
sketch6.addConstraint(Sketcher.Constraint("Vertical", 16))
sketch6.addConstraint(Sketcher.Constraint("Horizontal", 17))
sketch6.addConstraint(Sketcher.Constraint("Vertical", 18))
sketch6.addConstraint(Sketcher.Constraint("Horizontal", 20))
sketch6.addConstraint(Sketcher.Constraint("Vertical", 21))
sketch6.addConstraint(Sketcher.Constraint("Horizontal", 22))
sketch6.addConstraint(Sketcher.Constraint("Horizontal", 24))
sketch6.addConstraint(Sketcher.Constraint("Vertical", 25))
sketch6.addConstraint(Sketcher.Constraint("Horizontal", 26))
sketch6.addConstraint(Sketcher.Constraint("Vertical", 28))
sketch6.addConstraint(Sketcher.Constraint("Horizontal", 29))
sketch6.addConstraint(Sketcher.Constraint("Vertical", 30))
sketch6.addConstraint(Sketcher.Constraint("Symmetric", 0, 2, 16, 2, -1, 1))
sketch6.addConstraint(Sketcher.Constraint("Symmetric", 2, 2, 18, 2, -1, 1))
sketch6.addConstraint(Sketcher.Constraint("Symmetric", 3, 2, 19, 2, -1, 1))
sketch6.addConstraint(Sketcher.Constraint("Symmetric", 5, 2, 21, 2, -1, 1))
sketch6.addConstraint(Sketcher.Constraint("Symmetric", 8, 2, 24, 2, -1, 1))
sketch6.addConstraint(Sketcher.Constraint("Symmetric", 10, 2, 26, 2, -1, 1))
sketch6.addConstraint(Sketcher.Constraint("Symmetric", 11, 2, 27, 2, -1, 1))
sketch6.addConstraint(Sketcher.Constraint("Symmetric", 13, 2, 29, 2, -1, 1))
sketch6.addConstraint(Sketcher.Constraint("Symmetric", 5, 2, 8, 2, -2))
sketch6.addConstraint(Sketcher.Constraint("Symmetric", 3, 2, 10, 2, -2))
sketch6.addConstraint(Sketcher.Constraint("Symmetric", 2, 2, 11, 2, -2))
sketch6.addConstraint(Sketcher.Constraint("Symmetric", 0, 2, 13, 2, -2))
sketch6.addConstraint(Sketcher.Constraint("Parallel", 3, 7))
sketch6.addConstraint(Sketcher.Constraint("Perpendicular", 7, 11))
sketch6.addConstraint(Sketcher.Constraint("Parallel", 11, 15))
sketch6.addConstraint(Sketcher.Constraint("Parallel", 19, 23))
sketch6.addConstraint(Sketcher.Constraint("Parallel", 27, 31))
sketch6.addConstraint(Sketcher.Constraint("Horizontal", 7, 2, 14, 2))
sketch6.addConstraint(Sketcher.Constraint("Horizontal", 23, 2, 30, 2))
sketch6.addConstraint(Sketcher.Constraint("Vertical", 15, 2, 22, 2))
sketch6.addConstraint(Sketcher.Constraint("Equal", 24, 0))
sketch6.addConstraint(Sketcher.Constraint("Equal", 26, 2))
sketch6.addConstraint(Sketcher.Constraint("DistanceX", 1, 2, 1, 1, 0.2))
sketch6.addConstraint(Sketcher.Constraint("DistanceX", 1, 2, -1, 1, 17.0))
sketch6.addConstraint(Sketcher.Constraint("DistanceY", -1, 1, 3, 2, 17.0))
sketch6.addConstraint(Sketcher.Constraint("DistanceX", 6, 1, 6, 2, 3.66))
sketch6.addConstraint(Sketcher.Constraint("Distance", 7, 6.28))
sketch6.addConstraint(Sketcher.Constraint("DistanceX", 4, 2, 4, 1, 3.577))
pad3 = body.newObject("PartDesign::Pad", "Pad002")
pad3.Profile = sketch6
pad3.Length = 4
pad3.Reversed = True

doc.recompute()
